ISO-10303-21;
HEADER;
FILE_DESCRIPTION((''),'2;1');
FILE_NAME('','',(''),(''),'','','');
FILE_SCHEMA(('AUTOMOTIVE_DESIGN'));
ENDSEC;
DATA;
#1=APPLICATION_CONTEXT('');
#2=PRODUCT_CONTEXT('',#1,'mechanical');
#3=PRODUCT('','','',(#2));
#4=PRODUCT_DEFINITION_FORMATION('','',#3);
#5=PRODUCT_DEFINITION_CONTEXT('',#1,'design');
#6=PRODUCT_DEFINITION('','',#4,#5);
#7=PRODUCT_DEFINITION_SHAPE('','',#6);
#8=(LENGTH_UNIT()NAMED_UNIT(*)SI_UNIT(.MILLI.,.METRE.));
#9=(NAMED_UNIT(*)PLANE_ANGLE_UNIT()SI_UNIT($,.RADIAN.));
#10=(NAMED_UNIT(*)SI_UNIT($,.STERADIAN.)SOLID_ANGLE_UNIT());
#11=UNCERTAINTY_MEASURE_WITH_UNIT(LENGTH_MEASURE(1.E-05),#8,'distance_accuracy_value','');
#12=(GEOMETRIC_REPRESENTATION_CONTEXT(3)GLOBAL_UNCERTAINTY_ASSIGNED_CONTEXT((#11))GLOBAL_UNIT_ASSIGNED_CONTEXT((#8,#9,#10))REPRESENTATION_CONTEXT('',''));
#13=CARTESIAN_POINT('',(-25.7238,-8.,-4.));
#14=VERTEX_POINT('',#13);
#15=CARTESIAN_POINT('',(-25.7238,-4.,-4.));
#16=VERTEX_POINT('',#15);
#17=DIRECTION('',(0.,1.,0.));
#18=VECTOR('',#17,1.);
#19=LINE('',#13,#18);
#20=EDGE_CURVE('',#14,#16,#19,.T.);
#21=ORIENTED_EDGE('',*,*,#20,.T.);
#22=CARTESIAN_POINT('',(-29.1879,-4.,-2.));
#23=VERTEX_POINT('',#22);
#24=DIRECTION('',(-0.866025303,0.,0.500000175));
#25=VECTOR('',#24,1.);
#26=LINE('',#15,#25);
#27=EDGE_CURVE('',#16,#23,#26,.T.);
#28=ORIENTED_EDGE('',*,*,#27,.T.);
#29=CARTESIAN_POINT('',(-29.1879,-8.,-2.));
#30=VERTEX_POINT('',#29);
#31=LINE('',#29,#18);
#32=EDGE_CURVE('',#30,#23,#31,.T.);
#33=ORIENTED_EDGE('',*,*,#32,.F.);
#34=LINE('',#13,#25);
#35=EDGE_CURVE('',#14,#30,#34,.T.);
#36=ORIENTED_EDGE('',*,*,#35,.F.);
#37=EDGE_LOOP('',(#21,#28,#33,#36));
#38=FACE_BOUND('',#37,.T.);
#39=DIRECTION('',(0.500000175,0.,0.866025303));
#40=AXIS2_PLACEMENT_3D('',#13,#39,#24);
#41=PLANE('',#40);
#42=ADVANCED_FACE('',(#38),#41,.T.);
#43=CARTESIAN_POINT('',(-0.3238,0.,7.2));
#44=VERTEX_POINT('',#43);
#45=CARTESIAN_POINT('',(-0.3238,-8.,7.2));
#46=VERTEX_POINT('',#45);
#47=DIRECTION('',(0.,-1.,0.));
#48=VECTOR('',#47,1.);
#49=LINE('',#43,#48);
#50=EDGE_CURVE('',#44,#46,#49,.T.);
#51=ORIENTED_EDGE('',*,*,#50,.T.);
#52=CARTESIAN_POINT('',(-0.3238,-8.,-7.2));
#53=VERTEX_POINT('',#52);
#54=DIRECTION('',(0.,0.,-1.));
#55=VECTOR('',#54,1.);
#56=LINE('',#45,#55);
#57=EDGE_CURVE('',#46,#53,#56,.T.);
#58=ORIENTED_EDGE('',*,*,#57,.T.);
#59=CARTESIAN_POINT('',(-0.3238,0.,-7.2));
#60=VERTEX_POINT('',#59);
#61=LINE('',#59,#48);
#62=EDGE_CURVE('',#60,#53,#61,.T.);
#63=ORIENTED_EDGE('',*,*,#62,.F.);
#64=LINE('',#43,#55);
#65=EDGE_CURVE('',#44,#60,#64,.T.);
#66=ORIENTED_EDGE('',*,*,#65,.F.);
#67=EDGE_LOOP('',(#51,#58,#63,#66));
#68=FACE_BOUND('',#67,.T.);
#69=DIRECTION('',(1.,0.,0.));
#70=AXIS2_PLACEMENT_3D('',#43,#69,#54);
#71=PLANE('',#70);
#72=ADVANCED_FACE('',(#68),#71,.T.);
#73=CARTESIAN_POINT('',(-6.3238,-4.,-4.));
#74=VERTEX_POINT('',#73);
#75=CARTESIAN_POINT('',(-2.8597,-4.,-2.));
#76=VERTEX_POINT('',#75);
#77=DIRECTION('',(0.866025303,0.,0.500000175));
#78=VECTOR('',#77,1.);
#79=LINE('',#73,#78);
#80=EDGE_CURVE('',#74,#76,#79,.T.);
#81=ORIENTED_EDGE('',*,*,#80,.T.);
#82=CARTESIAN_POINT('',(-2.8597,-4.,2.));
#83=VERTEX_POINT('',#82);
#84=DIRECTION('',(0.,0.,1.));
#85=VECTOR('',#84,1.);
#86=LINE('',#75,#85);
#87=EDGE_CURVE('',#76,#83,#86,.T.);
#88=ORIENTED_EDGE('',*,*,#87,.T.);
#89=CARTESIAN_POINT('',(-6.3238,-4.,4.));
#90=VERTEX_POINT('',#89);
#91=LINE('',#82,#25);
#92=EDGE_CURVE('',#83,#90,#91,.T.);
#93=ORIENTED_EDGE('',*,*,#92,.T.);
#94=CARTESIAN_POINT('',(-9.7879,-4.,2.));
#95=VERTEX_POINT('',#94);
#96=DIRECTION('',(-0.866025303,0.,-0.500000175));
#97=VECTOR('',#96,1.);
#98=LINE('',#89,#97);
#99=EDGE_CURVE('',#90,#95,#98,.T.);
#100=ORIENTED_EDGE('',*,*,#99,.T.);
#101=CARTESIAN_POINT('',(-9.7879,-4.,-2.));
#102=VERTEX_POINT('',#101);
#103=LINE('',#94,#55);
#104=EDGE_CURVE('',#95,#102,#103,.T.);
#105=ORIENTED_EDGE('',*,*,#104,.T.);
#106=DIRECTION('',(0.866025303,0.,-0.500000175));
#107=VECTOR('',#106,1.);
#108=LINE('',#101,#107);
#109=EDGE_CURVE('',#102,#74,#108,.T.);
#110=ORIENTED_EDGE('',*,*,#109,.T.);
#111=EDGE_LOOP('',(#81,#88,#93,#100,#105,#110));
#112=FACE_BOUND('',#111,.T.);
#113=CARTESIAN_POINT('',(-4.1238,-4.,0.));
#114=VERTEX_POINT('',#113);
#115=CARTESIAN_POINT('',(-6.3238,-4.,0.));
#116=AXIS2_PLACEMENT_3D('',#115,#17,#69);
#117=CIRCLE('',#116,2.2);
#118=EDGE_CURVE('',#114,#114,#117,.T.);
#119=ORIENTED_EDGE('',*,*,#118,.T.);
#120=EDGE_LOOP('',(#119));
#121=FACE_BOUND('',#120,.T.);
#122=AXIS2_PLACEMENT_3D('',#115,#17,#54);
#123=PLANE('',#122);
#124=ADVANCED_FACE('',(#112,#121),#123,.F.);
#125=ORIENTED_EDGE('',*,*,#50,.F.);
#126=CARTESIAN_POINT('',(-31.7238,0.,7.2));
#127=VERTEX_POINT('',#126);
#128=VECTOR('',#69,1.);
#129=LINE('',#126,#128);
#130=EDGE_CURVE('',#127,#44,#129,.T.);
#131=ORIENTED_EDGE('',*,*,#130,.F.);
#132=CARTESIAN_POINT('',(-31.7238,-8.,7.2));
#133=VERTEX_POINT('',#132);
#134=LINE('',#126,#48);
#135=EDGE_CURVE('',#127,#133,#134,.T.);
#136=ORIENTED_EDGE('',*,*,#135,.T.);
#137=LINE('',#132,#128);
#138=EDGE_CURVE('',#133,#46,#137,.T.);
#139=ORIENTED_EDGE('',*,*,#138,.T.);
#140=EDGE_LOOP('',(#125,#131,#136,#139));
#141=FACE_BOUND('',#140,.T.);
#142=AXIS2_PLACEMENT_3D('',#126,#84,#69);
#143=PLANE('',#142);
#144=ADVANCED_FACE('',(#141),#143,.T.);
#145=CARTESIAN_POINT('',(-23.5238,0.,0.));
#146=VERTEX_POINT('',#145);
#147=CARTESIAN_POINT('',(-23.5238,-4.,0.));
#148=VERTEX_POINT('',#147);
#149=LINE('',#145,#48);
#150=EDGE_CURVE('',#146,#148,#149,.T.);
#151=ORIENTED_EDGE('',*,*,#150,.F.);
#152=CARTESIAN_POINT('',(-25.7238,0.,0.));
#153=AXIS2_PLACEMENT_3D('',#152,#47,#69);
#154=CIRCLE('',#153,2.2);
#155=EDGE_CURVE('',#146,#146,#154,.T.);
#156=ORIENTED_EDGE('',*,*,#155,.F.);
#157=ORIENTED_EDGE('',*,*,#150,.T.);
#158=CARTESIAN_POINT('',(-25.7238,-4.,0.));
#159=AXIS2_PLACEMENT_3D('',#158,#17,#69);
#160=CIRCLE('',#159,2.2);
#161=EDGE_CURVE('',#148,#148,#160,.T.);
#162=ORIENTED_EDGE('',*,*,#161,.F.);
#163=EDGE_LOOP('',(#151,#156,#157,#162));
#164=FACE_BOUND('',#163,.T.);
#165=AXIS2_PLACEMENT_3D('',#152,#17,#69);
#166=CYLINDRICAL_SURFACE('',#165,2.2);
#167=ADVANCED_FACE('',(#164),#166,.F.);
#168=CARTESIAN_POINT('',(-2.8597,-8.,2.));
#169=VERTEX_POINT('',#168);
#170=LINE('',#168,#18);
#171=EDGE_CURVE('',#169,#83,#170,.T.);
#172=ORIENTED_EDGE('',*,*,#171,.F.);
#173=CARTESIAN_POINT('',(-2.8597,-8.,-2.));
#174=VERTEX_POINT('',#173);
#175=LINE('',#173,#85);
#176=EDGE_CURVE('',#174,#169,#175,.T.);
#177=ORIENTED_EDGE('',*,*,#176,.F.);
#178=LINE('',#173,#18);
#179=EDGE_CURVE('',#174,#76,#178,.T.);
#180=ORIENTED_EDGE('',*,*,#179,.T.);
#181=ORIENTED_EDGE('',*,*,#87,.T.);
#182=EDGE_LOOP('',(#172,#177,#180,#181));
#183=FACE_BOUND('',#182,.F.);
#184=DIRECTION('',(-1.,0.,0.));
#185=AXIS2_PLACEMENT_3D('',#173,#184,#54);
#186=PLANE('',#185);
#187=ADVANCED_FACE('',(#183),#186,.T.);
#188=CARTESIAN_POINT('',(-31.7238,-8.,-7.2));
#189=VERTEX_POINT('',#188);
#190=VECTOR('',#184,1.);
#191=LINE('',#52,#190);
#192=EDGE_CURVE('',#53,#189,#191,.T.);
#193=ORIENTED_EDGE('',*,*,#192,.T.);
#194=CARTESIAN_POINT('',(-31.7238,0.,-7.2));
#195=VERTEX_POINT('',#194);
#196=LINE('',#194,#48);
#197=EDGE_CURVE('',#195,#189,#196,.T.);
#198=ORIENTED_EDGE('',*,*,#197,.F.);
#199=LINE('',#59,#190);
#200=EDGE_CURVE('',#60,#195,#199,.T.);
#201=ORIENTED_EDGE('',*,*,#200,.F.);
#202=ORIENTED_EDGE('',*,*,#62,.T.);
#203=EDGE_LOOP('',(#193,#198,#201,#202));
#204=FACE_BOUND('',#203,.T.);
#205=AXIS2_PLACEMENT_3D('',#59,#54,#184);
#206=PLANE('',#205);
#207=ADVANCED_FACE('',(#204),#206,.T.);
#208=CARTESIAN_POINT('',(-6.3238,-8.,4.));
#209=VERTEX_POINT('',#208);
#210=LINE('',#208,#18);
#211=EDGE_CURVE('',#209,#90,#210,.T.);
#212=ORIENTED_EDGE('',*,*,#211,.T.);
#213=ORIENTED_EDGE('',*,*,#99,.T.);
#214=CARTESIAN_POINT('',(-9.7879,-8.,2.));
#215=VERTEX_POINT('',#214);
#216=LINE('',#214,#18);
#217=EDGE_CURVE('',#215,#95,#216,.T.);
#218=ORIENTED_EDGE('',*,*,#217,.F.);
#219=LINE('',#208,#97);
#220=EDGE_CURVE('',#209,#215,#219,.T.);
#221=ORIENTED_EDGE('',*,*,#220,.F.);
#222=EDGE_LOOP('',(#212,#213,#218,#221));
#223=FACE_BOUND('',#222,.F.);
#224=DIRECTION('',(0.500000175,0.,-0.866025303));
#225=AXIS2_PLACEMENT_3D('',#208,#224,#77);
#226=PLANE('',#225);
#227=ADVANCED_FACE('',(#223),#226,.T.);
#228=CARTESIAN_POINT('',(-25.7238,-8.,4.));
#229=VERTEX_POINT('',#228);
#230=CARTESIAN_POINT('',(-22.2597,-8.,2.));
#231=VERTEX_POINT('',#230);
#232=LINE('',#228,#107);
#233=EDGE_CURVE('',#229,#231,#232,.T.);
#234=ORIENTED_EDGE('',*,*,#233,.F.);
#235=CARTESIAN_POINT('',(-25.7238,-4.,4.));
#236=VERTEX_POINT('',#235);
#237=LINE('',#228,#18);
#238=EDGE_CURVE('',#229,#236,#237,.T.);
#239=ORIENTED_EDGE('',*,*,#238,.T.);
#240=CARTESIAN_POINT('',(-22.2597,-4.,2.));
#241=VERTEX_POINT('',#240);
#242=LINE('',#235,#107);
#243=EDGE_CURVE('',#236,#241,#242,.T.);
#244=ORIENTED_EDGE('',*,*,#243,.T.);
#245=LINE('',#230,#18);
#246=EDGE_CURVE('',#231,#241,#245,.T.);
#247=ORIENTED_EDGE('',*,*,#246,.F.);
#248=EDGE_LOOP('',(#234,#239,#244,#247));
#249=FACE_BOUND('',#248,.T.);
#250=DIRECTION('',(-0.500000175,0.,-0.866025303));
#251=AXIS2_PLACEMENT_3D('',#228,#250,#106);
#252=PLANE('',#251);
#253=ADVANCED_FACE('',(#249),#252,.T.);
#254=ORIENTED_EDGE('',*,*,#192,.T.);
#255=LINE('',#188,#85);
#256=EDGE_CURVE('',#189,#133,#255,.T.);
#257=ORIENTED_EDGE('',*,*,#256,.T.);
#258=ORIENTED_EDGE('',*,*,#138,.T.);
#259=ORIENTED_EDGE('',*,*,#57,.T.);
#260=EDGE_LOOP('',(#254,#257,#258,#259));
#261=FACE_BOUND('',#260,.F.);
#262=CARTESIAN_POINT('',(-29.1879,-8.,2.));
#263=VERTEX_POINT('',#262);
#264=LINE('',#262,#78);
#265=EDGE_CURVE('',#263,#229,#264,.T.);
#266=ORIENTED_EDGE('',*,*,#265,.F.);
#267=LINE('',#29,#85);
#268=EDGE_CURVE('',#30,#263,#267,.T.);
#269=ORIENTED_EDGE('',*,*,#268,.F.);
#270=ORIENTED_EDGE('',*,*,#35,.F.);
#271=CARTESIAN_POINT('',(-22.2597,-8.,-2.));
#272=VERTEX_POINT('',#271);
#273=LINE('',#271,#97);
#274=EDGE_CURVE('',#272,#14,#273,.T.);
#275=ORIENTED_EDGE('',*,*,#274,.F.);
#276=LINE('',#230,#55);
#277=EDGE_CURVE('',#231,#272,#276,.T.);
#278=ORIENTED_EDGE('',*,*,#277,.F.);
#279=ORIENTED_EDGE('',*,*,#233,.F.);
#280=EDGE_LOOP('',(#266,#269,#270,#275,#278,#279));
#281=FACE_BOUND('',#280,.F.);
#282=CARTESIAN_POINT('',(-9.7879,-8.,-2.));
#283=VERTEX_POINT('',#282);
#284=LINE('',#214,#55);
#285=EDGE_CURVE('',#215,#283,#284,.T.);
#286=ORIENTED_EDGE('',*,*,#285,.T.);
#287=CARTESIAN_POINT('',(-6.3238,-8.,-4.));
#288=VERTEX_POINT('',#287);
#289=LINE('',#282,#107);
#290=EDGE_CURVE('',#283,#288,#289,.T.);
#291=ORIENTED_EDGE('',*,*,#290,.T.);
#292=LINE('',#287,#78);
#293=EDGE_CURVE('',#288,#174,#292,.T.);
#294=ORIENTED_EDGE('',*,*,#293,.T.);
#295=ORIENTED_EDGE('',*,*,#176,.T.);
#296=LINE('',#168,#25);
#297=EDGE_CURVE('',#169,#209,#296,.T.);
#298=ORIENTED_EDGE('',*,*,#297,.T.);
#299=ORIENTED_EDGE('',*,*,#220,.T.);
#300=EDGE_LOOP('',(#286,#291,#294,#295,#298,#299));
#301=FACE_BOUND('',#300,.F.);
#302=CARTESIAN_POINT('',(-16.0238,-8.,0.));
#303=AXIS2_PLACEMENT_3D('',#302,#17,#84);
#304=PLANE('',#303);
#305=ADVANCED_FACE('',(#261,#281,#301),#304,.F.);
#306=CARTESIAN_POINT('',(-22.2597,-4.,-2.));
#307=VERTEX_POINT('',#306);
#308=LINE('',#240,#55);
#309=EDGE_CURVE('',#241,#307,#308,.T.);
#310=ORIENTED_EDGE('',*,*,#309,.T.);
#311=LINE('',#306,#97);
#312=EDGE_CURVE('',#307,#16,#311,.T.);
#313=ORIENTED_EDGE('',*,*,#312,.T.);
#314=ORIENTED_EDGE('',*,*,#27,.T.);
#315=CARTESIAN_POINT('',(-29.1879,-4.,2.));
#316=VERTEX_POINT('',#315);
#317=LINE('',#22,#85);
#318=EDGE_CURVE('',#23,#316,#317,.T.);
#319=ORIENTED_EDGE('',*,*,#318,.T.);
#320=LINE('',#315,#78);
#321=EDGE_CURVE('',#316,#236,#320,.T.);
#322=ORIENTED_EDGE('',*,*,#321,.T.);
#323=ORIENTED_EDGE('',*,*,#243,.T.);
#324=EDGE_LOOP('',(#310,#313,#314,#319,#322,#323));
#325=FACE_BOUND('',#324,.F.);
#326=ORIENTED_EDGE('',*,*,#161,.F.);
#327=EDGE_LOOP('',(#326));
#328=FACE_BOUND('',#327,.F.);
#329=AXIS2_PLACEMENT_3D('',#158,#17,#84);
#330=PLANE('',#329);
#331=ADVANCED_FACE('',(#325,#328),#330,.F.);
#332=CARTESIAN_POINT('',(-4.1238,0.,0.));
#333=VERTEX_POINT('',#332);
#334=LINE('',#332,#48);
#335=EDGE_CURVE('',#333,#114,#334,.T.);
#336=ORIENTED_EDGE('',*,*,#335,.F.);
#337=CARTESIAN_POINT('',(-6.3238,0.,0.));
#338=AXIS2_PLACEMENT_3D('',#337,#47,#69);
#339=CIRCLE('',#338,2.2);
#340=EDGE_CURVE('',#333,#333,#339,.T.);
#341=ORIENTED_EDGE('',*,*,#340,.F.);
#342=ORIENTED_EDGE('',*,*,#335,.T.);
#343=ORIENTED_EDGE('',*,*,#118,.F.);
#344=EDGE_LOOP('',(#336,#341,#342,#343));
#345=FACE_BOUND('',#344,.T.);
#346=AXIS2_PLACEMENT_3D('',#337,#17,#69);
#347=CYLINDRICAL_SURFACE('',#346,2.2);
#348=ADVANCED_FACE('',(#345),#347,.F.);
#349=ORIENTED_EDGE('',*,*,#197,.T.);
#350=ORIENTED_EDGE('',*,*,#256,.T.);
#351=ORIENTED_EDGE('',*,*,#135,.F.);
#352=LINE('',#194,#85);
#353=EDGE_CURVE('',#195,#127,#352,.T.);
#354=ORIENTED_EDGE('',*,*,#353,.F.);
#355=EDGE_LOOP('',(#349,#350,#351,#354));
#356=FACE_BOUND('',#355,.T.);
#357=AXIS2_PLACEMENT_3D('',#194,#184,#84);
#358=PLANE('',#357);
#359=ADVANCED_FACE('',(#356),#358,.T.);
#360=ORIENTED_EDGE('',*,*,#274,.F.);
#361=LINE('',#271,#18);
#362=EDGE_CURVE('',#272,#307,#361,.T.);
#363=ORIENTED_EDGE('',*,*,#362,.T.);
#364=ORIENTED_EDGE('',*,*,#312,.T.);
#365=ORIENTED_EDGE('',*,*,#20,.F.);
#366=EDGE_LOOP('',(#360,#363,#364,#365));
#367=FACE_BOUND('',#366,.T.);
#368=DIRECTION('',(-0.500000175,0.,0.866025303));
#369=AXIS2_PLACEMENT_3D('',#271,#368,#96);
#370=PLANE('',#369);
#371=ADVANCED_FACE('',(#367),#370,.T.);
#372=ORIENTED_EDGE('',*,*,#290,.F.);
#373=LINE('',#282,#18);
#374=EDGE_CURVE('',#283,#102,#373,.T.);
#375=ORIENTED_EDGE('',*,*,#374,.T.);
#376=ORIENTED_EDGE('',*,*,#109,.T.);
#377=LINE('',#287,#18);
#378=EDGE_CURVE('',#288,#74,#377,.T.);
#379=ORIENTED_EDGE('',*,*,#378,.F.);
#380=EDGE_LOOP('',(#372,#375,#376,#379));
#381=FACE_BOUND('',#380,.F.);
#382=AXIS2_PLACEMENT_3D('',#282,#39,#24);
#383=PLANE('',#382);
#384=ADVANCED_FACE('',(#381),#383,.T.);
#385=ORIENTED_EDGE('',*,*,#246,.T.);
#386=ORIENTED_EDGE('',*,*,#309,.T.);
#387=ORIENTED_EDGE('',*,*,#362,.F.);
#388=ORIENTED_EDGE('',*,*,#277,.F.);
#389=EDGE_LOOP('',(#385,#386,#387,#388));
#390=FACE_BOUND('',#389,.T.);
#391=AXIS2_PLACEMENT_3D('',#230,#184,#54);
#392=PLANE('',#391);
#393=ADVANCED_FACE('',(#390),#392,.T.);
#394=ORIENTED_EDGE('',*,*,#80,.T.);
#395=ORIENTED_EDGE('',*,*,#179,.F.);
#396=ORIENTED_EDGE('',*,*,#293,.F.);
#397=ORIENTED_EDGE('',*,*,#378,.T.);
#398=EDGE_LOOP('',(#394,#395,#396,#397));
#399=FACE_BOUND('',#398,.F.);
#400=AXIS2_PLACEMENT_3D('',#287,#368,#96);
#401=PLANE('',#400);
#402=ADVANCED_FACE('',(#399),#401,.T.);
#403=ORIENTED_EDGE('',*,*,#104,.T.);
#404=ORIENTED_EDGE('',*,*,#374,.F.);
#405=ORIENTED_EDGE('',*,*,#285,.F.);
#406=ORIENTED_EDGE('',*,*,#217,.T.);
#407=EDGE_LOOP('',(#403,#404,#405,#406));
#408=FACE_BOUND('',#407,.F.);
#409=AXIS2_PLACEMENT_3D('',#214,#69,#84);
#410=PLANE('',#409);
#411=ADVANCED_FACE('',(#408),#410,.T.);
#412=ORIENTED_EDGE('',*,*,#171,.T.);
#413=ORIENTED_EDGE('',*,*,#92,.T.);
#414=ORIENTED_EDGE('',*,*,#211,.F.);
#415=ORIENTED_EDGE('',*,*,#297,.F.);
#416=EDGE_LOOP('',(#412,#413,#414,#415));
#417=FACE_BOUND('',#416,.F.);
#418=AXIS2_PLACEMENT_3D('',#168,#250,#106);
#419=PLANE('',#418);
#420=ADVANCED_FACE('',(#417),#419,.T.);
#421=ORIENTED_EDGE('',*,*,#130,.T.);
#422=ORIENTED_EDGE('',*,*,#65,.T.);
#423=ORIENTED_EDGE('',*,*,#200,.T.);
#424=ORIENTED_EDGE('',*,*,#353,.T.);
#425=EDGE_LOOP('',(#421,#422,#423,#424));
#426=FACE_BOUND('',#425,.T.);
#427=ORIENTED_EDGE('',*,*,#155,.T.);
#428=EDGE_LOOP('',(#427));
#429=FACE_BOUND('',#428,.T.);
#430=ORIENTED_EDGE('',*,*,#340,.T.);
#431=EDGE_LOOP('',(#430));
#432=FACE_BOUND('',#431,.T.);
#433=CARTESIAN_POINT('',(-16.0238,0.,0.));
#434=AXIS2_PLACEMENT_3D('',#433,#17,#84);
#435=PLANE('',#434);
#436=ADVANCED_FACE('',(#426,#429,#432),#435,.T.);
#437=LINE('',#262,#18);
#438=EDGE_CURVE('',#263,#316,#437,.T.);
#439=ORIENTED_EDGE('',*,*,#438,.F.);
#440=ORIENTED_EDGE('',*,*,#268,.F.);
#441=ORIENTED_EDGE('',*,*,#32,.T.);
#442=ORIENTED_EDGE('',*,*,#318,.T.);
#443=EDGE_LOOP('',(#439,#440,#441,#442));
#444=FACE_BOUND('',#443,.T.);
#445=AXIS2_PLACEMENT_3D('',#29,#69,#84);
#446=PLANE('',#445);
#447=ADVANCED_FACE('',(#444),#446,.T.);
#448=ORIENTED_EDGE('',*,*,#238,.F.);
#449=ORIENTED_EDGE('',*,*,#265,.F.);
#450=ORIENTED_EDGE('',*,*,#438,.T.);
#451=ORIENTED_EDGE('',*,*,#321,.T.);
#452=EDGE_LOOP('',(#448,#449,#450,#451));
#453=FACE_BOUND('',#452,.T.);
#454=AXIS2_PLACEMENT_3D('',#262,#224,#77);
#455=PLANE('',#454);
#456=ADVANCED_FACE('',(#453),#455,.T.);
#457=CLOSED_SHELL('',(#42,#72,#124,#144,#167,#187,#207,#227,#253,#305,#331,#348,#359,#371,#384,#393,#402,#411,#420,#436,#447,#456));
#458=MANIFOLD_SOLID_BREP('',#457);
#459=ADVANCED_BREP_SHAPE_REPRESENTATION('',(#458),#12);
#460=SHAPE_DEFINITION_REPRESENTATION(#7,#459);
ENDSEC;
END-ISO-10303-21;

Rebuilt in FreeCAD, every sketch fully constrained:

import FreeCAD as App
import Part
import Sketcher
from FreeCAD import Vector
Q = App.Units.Quantity

doc = App.newDocument("Part")
body = doc.addObject("PartDesign::Body", "Body")

sketch1 = body.newObject("Sketcher::SketchObject", "Sketch")
sketch1.AttachmentSupport = (doc.getObject("XZ_Plane"), [""])
sketch1.MapMode = "FlatFace"
sketch1.addGeometry([
    Part.LineSegment(Vector(-0.3238, 7.2, 0), Vector(-31.7238, 7.2, 0)),
    Part.LineSegment(Vector(-31.7238, 7.2, 0), Vector(-31.7238, -7.2, 0)),
    Part.LineSegment(Vector(-31.7238, -7.2, 0), Vector(-0.3238, -7.2, 0)),
    Part.LineSegment(Vector(-0.3238, -7.2, 0), Vector(-0.3238, 7.2, 0)),
    Part.Circle(Vector(-25.7238, 0, 0), Vector(0, 0, 1), 2.2),
    Part.Circle(Vector(-6.3238, 0, 0), Vector(0, 0, 1), 2.2),
], False)
sketch1.addConstraint([
    Sketcher.Constraint("Coincident", 0, 2, 1, 1),
    Sketcher.Constraint("Coincident", 1, 2, 2, 1),
    Sketcher.Constraint("Coincident", 2, 2, 3, 1),
    Sketcher.Constraint("Coincident", 3, 2, 0, 1),
    Sketcher.Constraint("Horizontal", 0),
    Sketcher.Constraint("Vertical", 1),
    Sketcher.Constraint("Horizontal", 2),
    Sketcher.Constraint("Vertical", 3),
    Sketcher.Constraint("Equal", 4, 5),
    Sketcher.Constraint("PointOnObject", 4, 3, -1),
    Sketcher.Constraint("PointOnObject", 5, 3, -1),
    Sketcher.Constraint("Diameter", 4, 4.4),
    Sketcher.Constraint("DistanceX", 0, 2, 0, 1, 31.4),
    Sketcher.Constraint("DistanceY", 1, 2, 1, 1, 14.4),
    Sketcher.Constraint("DistanceX", 0, 2, 4, 3, 6.0),
    Sketcher.Constraint("DistanceX", 5, 3, 2, 2, 6.0),
    Sketcher.Constraint("DistanceX", 4, 3, -1, 1, 25.7238),
    Sketcher.Constraint("DistanceY", -1, 1, 0, 2, 7.2),
])
pad1 = body.newObject("PartDesign::Pad", "Pad")
pad1.Profile = sketch1
pad1.Length = 8

sketch2 = body.newObject("Sketcher::SketchObject", "Sketch001")
sketch2.AttachmentSupport = (doc.getObject("XZ_Plane"), [""])
sketch2.MapMode = "FlatFace"
sketch2.AttachmentOffset = App.Placement(Vector(0, 0, 8), App.Rotation())
sketch2.addGeometry([
    Part.LineSegment(Vector(-29.1879, 2, 0), Vector(-29.1879, -2, 0)),
    Part.LineSegment(Vector(-29.1879, -2, 0), Vector(-25.7238, -4, 0)),
    Part.LineSegment(Vector(-25.7238, -4, 0), Vector(-22.2597, -2, 0)),
    Part.LineSegment(Vector(-22.2597, -2, 0), Vector(-22.2597, 2, 0)),
    Part.LineSegment(Vector(-22.2597, 2, 0), Vector(-25.7238, 4, 0)),
    Part.LineSegment(Vector(-25.7238, 4, 0), Vector(-29.1879, 2, 0)),
], False)
sketch2.addConstraint([
    Sketcher.Constraint("Coincident", 0, 2, 1, 1),
    Sketcher.Constraint("Coincident", 1, 2, 2, 1),
    Sketcher.Constraint("Coincident", 2, 2, 3, 1),
    Sketcher.Constraint("Coincident", 3, 2, 4, 1),
    Sketcher.Constraint("Coincident", 4, 2, 5, 1),
    Sketcher.Constraint("Coincident", 5, 2, 0, 1),
    Sketcher.Constraint("Vertical", 0),
    Sketcher.Constraint("Vertical", 3),
    Sketcher.Constraint("Symmetric", 1, 2, 4, 2, -1),
    Sketcher.Constraint("Parallel", 1, 4),
    Sketcher.Constraint("Parallel", 2, 5),
    Sketcher.Constraint("Horizontal", 0, 2, 2, 2),
    Sketcher.Constraint("Horizontal", 3, 2, 5, 2),
    Sketcher.Constraint("DistanceY", 0, 2, 0, 1, 4.0),
    Sketcher.Constraint("Angle", 1, Q("-30 deg")),
    Sketcher.Constraint("Distance", 1, 4.0),
    Sketcher.Constraint("DistanceX", 0, 2, -1, 1, 29.188),
])
pocket1 = body.newObject("PartDesign::Pocket", "Pocket")
pocket1.Profile = sketch2
pocket1.Length = 4
doc.recompute()

datumplane = body.newObject("PartDesign::Plane", "DatumPlane")
datumplane.AttachmentSupport = (doc.getObject("YZ_Plane"), [""])
datumplane.MapMode = "FlatFace"
datumplane.AttachmentOffset = App.Placement(Vector(0, 0, -16.0238), App.Rotation())
mirrored = body.newObject("PartDesign::Mirrored", "Mirrored")
mirrored.Originals = [pocket1]
mirrored.MirrorPlane = (datumplane, [""])
body.Tip = mirrored

doc.recompute()
